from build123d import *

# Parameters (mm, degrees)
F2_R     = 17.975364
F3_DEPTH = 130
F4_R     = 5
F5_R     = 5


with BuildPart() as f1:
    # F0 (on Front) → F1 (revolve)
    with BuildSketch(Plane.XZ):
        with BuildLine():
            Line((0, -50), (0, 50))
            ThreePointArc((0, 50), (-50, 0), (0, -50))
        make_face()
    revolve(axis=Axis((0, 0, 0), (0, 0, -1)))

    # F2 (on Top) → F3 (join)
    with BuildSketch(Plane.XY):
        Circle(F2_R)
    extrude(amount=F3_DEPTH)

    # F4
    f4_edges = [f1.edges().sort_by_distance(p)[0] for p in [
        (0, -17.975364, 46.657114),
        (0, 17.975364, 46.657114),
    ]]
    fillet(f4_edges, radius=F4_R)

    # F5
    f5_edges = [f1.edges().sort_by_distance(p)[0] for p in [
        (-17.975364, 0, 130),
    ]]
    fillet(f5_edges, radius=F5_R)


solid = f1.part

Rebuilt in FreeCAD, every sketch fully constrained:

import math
import FreeCAD as App
import Part
import Sketcher

V = App.Vector


def edges_at(feature, points):
    """Names of the edges that pass closest to the given points."""
    edges = feature.Shape.Edges
    near = lambda p: min(range(len(edges)), key=lambda i: edges[i].distToShape(Part.Vertex(*p))[0])
    return sorted({f"Edge{near(p) + 1}" for p in points})

doc = App.newDocument("Part")
body = doc.addObject("PartDesign::Body", "Body")

# Sketch on XZ plane
sketch1 = body.newObject("Sketcher::SketchObject", "Sketch")
sketch1.AttachmentSupport = (doc.getObject("XZ_Plane"), [""])
sketch1.MapMode = "FlatFace"
sketch1.addGeometry([
    Part.LineSegment(V(0, -50, 0), V(0, 50, 0)),
    Part.ArcOfCircle(Part.Circle(V(0, 0, 0), V(0, 0, 1), 50), math.radians(90), math.radians(270)),
], False)
sketch1.addConstraint([
    Sketcher.Constraint("Coincident", 0, 1, 1, 2),
    Sketcher.Constraint("Coincident", 1, 1, 0, 2),
    Sketcher.Constraint("Vertical", 0),
    Sketcher.Constraint("Coincident", 1, 3, -1, 1),
    Sketcher.Constraint("PointOnObject", 0, 1, -2),
    Sketcher.Constraint("Radius", 1, 50.0),
])
revolution = body.newObject("PartDesign::Revolution", "Revolution")
revolution.Profile = sketch1
revolution.ReferenceAxis = (sketch1, ["V_Axis"])
revolution.Angle = 360

# Sketch on XY plane
sketch2 = body.newObject("Sketcher::SketchObject", "Sketch001")
sketch2.AttachmentSupport = (doc.getObject("XY_Plane"), [""])
sketch2.MapMode = "FlatFace"
sketch2.addGeometry(Part.Circle(V(0, 0, 0), V(0, 0, 1), 18), False)
sketch2.addConstraint([
    Sketcher.Constraint("Coincident", 0, 3, -1, 1),
    Sketcher.Constraint("Diameter", 0, 35.950728),
])
pad1 = body.newObject("PartDesign::Pad", "Pad")
pad1.Profile = sketch2
pad1.Length = 130
doc.recompute()

fillet = body.newObject("PartDesign::Fillet", "Fillet")
fillet.Base = (pad1, edges_at(pad1, [(0, -17.975, 46.657), (0, 17.975, 46.657)]))
fillet.Radius = 5
doc.recompute()

fillet2 = body.newObject("PartDesign::Fillet", "Fillet001")
fillet2.Base = (fillet, edges_at(fillet, [(-17.975, 0, 130)]))
fillet2.Radius = 5

doc.recompute()
